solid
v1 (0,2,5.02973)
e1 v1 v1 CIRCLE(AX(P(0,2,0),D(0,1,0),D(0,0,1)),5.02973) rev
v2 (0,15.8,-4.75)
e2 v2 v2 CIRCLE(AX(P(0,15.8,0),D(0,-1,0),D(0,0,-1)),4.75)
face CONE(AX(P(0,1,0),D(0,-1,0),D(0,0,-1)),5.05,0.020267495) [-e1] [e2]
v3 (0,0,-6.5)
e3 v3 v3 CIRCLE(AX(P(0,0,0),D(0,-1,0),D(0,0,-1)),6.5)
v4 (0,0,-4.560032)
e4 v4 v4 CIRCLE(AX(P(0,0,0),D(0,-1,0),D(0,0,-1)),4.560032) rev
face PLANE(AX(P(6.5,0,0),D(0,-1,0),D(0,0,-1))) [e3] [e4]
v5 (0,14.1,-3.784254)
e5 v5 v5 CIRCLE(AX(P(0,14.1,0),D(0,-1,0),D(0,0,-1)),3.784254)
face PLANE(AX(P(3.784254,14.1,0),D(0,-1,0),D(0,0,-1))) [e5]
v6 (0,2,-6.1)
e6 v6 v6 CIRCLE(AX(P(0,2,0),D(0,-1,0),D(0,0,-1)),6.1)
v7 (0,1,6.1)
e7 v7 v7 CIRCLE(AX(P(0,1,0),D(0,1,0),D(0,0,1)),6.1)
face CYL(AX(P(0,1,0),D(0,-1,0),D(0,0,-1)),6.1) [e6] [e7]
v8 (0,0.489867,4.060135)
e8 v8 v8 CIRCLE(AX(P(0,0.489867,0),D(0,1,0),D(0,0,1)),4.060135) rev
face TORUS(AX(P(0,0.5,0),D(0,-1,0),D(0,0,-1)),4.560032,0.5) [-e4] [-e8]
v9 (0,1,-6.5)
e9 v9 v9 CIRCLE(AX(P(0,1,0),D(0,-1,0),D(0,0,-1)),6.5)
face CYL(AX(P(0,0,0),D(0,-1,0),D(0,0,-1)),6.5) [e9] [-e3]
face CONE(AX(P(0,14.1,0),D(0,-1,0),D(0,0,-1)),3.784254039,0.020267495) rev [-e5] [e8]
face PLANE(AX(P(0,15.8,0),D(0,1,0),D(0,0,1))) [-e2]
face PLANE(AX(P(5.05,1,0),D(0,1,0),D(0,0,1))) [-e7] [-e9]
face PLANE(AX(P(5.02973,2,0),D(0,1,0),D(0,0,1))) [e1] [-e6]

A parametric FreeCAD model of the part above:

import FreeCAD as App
import Part
import Sketcher

V = App.Vector


def edges_at(feature, points):
    """Names of the edges that pass closest to the given points."""
    edges = feature.Shape.Edges
    near = lambda p: min(range(len(edges)), key=lambda i: edges[i].distToShape(Part.Vertex(*p))[0])
    return sorted({f"Edge{near(p) + 1}" for p in points})

doc = App.newDocument("Part")
body = doc.addObject("PartDesign::Body", "Body")

# Sketch on XY plane
sketch1 = doc.addObject("Sketcher::SketchObject", "Sketch")
body.addObject(sketch1)
sketch1.AttachmentSupport = (doc.XY_Plane, [""])
sketch1.MapMode = "FlatFace"
sketch1.addGeometry(Part.LineSegment(V(4.75, 15.8, 0), V(0, 15.8, 0)), False)
sketch1.addGeometry(Part.LineSegment(V(0, 15.8, 0), V(0, 14.1, 0)), False)
sketch1.addGeometry(Part.LineSegment(V(0, 14.1, 0), V(3.784254, 14.1, 0)), False)
sketch1.addGeometry(Part.LineSegment(V(3.784254, 14.1, 0), V(4.070065, 0, 0)), False)
sketch1.addGeometry(Part.LineSegment(V(4.070065, 0, 0), V(6.5, 0, 0)), False)
sketch1.addGeometry(Part.LineSegment(V(6.5, 0, 0), V(6.5, 1, 0)), False)
sketch1.addGeometry(Part.LineSegment(V(6.5, 1, 0), V(5.05, 1, 0)), False)
sketch1.addGeometry(Part.LineSegment(V(5.05, 1, 0), V(4.75, 15.8, 0)), False)
sketch1.addConstraint(Sketcher.Constraint("Coincident", 0, 2, 1, 1))
sketch1.addConstraint(Sketcher.Constraint("Coincident", 1, 2, 2, 1))
sketch1.addConstraint(Sketcher.Constraint("Coincident", 2, 2, 3, 1))
sketch1.addConstraint(Sketcher.Constraint("Coincident", 3, 2, 4, 1))
sketch1.addConstraint(Sketcher.Constraint("Coincident", 4, 2, 5, 1))
sketch1.addConstraint(Sketcher.Constraint("Coincident", 5, 2, 6, 1))
sketch1.addConstraint(Sketcher.Constraint("Coincident", 6, 2, 7, 1))
sketch1.addConstraint(Sketcher.Constraint("Coincident", 7, 2, 0, 1))
sketch1.addConstraint(Sketcher.Constraint("Horizontal", 0))
sketch1.addConstraint(Sketcher.Constraint("Vertical", 1))
sketch1.addConstraint(Sketcher.Constraint("Horizontal", 2))
sketch1.addConstraint(Sketcher.Constraint("Horizontal", 4))
sketch1.addConstraint(Sketcher.Constraint("Vertical", 5))
sketch1.addConstraint(Sketcher.Constraint("Horizontal", 6))
sketch1.addConstraint(Sketcher.Constraint("PointOnObject", 0, 2, -2))
sketch1.addConstraint(Sketcher.Constraint("PointOnObject", 3, 2, -1))
sketch1.addConstraint(Sketcher.Constraint("Parallel", 3, 7))
sketch1.addConstraint(Sketcher.Constraint("DistanceY", 5, 1, 5, 2, 1.0))
sketch1.addConstraint(Sketcher.Constraint("DistanceY", 1, 2, 1, 1, 1.7))
sketch1.addConstraint(Sketcher.Constraint("DistanceX", 0, 2, 0, 1, 4.75))
sketch1.addConstraint(Sketcher.Constraint("DistanceX", 6, 2, 6, 1, 1.45))
sketch1.addConstraint(Sketcher.Constraint("DistanceY", -1, 1, 0, 2, 15.8))
sketch1.addConstraint(Sketcher.Constraint("DistanceX", -1, 1, 4, 2, 6.5))
sketch1.addConstraint(Sketcher.Constraint("DistanceX", 2, 1, 2, 2, 3.784254))
revolution = doc.addObject("PartDesign::Revolution", "Revolution")
body.addObject(revolution)
revolution.Profile = sketch1
revolution.ReferenceAxis = (sketch1, ["V_Axis"])
revolution.Angle = 360

# Sketch on XY plane
sketch2 = doc.addObject("Sketcher::SketchObject", "Sketch001")
body.addObject(sketch2)
sketch2.AttachmentSupport = (doc.XY_Plane, [""])
sketch2.MapMode = "FlatFace"
sketch2.addGeometry(Part.LineSegment(V(6.1, 2, 0), V(5.02973, 2, 0)), False)
sketch2.addGeometry(Part.LineSegment(V(5.02973, 2, 0), V(5.05, 1, 0)), False)
sketch2.addGeometry(Part.LineSegment(V(5.05, 1, 0), V(6.1, 1, 0)), False)
sketch2.addGeometry(Part.LineSegment(V(6.1, 1, 0), V(6.1, 2, 0)), False)
sketch2.addConstraint(Sketcher.Constraint("Coincident", 0, 2, 1, 1))
sketch2.addConstraint(Sketcher.Constraint("Coincident", 1, 2, 2, 1))
sketch2.addConstraint(Sketcher.Constraint("Coincident", 2, 2, 3, 1))
sketch2.addConstraint(Sketcher.Constraint("Coincident", 3, 2, 0, 1))
sketch2.addConstraint(Sketcher.Constraint("Horizontal", 0))
sketch2.addConstraint(Sketcher.Constraint("Horizontal", 2))
sketch2.addConstraint(Sketcher.Constraint("Vertical", 3))
sketch2.addConstraint(Sketcher.Constraint("DistanceY", 3, 1, 3, 2, 1.0))
sketch2.addConstraint(Sketcher.Constraint("DistanceY", -1, 1, 0, 2, 2.0))
sketch2.addConstraint(Sketcher.Constraint("DistanceX", 2, 1, 2, 2, 1.05))
sketch2.addConstraint(Sketcher.Constraint("DistanceX", -1, 1, 2, 2, 6.1))
sketch2.addConstraint(Sketcher.Constraint("DistanceX", 0, 2, 0, 1, 1.07027))
revolution2 = doc.addObject("PartDesign::Revolution", "Revolution001")
body.addObject(revolution2)
revolution2.Profile = sketch2
revolution2.ReferenceAxis = (sketch2, ["V_Axis"])
revolution2.Angle = 360
doc.recompute()

fillet = doc.addObject("PartDesign::Fillet", "Fillet")
body.addObject(fillet)
fillet.Base = (revolution2, edges_at(revolution2, [(0, 0, 4.07)]))
fillet.Radius = 0.5

doc.recompute()
